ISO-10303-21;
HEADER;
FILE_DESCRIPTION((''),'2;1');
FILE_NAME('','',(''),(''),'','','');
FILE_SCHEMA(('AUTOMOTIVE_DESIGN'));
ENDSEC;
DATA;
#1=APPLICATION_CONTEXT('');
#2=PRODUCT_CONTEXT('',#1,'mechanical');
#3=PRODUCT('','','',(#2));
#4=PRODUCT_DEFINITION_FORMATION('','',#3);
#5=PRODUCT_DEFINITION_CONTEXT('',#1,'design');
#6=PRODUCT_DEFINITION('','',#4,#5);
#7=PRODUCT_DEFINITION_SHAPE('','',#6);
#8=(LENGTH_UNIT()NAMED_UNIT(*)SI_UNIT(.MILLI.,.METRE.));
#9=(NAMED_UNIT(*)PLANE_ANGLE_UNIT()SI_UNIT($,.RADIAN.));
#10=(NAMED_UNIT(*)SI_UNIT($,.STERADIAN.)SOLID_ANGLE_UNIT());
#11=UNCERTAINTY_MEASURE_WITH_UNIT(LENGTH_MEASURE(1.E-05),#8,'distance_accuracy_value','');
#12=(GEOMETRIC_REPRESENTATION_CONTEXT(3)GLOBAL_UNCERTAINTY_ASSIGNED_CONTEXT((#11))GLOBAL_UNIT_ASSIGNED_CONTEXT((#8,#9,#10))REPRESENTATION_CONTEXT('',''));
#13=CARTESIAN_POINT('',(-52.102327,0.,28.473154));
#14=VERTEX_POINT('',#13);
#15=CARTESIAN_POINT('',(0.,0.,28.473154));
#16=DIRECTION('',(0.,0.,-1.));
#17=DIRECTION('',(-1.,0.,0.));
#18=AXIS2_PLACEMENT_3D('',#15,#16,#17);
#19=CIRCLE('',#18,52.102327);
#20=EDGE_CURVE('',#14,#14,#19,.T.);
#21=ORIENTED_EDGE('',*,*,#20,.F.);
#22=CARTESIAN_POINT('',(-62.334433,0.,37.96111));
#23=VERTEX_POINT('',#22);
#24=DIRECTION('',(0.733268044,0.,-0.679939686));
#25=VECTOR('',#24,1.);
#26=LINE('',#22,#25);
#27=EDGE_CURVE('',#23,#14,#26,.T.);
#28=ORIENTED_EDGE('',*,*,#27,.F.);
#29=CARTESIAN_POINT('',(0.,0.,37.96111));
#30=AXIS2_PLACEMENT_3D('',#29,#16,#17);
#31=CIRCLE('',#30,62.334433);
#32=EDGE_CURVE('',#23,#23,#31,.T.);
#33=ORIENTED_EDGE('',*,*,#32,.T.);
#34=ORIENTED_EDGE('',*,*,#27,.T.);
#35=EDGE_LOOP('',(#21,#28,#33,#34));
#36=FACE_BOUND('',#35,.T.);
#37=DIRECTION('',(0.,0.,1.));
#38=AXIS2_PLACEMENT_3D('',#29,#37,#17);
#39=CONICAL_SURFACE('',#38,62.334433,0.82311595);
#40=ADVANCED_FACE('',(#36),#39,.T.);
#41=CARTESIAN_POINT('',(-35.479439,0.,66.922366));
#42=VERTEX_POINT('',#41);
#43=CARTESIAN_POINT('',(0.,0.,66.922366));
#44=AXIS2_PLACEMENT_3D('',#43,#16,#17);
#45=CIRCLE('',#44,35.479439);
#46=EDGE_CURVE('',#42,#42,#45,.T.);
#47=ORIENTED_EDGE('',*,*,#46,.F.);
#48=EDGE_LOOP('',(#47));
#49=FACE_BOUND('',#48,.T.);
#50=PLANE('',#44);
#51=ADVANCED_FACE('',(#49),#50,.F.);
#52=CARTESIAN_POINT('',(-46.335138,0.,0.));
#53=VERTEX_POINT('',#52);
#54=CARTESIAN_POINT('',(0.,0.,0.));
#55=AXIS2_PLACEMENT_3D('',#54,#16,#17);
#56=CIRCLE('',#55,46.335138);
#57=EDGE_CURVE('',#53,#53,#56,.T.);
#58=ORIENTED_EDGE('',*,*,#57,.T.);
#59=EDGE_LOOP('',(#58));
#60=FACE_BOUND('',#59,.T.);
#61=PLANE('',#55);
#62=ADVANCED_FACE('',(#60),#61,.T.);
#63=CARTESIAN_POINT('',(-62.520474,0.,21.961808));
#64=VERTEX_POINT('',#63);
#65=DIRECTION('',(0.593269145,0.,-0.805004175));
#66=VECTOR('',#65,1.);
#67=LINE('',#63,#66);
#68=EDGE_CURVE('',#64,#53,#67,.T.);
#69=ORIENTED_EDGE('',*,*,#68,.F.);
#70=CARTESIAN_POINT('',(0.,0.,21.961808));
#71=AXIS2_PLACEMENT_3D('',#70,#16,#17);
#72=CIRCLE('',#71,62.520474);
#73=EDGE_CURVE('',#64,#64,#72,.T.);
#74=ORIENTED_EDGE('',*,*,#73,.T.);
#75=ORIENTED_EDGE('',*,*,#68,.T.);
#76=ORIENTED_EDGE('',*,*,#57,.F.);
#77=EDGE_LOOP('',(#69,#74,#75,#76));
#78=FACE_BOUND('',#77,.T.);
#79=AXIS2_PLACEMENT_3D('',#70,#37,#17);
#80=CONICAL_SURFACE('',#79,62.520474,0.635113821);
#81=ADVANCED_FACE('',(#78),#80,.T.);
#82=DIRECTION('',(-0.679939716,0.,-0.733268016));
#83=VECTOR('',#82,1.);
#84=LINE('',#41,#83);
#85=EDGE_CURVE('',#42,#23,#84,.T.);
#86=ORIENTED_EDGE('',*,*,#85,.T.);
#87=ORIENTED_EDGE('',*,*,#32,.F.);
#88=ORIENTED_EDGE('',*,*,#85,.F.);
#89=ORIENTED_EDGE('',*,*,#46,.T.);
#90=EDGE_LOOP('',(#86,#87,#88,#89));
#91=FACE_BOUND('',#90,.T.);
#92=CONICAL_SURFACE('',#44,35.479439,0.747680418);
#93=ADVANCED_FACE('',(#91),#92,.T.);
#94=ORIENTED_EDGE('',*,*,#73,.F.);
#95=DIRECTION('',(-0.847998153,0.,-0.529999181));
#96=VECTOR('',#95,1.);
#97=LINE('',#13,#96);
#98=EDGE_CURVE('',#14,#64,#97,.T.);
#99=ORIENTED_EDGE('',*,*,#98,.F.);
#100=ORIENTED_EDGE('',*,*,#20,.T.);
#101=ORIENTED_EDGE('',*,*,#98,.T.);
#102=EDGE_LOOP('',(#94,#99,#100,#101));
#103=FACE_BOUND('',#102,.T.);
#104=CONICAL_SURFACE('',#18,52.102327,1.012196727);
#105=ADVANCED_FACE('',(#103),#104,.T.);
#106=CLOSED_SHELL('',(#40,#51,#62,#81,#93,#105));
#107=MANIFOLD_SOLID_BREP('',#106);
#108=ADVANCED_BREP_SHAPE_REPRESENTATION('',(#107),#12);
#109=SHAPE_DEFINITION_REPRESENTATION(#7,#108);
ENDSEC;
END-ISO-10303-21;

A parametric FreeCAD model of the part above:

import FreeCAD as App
import Part
import Sketcher

V = App.Vector


def add_polygon(sketch, points):
    """Adds a closed chain of lines whose ends are joined by coincident constraints."""
    first, n = sketch.GeometryCount, len(points)
    for a, b in zip(points, points[1:] + points[:1]):
        sketch.addGeometry(Part.LineSegment(App.Vector(*a, 0), App.Vector(*b, 0)), False)
    for i in range(n):
        sketch.addConstraint(Sketcher.Constraint("Coincident", first + i, 2, first + (i + 1) % n, 1))

doc = App.newDocument("Part")
params = doc.addObject("Spreadsheet::Sheet", "Params")
for row, (alias, value) in enumerate([
    ("revolution_angle", "360 deg"),
], start=1):
    params.set(f"A{row}", alias)
    params.set(f"B{row}", "=" + value)
    params.setAlias(f"B{row}", alias)

body = doc.addObject("PartDesign::Body", "Body")

# Sketch on XZ plane
sketch1 = doc.addObject("Sketcher::SketchObject", "Sketch")
body.addObject(sketch1)
sketch1.AttachmentSupport = (doc.XZ_Plane, [""])
sketch1.MapMode = "FlatFace"
add_polygon(sketch1, [(-63, 22), (-46, 0), (0, 0), (0, 67), (-35, 67), (-62, 38), (-52, 28)])  # lines 0-6
sketch1.addConstraint(Sketcher.Constraint("Horizontal", 1))
sketch1.addConstraint(Sketcher.Constraint("Vertical", 2))
sketch1.addConstraint(Sketcher.Constraint("Horizontal", 3))
sketch1.addConstraint(Sketcher.Constraint("Coincident", 1, 2, -1, 1))
sketch1.addConstraint(Sketcher.Constraint("Perpendicular", 4, 5))
sketch1.addConstraint(Sketcher.Constraint("DistanceX", 3, 2, 3, 1, 35.479439))
sketch1.addConstraint(Sketcher.Constraint("DistanceX", 0, 2, 3, 2, 10.855699))
sketch1.addConstraint(Sketcher.Constraint("DistanceY", 6, 2, 4, 2, 15.999302))
sketch1.addConstraint(Sketcher.Constraint("Distance", 4, 39.49614))
sketch1.addConstraint(Sketcher.Constraint("DistanceY", 2, 1, 2, 2, 66.922366))
sketch1.addConstraint(Sketcher.Constraint("DistanceY", -1, 1, 4, 2, 37.96111))
sketch1.addConstraint(Sketcher.Constraint("DistanceX", 5, 2, 0, 2, 5.767189))
sketch1.addConstraint(Sketcher.Constraint("DistanceX", 6, 2, 4, 2, 0.186041))
revolution = doc.addObject("PartDesign::Revolution", "Revolution")
body.addObject(revolution)
revolution.Profile = sketch1
revolution.ReferenceAxis = (sketch1, ["V_Axis"])
revolution.setExpression("Angle", "Params.revolution_angle")

doc.recompute()
